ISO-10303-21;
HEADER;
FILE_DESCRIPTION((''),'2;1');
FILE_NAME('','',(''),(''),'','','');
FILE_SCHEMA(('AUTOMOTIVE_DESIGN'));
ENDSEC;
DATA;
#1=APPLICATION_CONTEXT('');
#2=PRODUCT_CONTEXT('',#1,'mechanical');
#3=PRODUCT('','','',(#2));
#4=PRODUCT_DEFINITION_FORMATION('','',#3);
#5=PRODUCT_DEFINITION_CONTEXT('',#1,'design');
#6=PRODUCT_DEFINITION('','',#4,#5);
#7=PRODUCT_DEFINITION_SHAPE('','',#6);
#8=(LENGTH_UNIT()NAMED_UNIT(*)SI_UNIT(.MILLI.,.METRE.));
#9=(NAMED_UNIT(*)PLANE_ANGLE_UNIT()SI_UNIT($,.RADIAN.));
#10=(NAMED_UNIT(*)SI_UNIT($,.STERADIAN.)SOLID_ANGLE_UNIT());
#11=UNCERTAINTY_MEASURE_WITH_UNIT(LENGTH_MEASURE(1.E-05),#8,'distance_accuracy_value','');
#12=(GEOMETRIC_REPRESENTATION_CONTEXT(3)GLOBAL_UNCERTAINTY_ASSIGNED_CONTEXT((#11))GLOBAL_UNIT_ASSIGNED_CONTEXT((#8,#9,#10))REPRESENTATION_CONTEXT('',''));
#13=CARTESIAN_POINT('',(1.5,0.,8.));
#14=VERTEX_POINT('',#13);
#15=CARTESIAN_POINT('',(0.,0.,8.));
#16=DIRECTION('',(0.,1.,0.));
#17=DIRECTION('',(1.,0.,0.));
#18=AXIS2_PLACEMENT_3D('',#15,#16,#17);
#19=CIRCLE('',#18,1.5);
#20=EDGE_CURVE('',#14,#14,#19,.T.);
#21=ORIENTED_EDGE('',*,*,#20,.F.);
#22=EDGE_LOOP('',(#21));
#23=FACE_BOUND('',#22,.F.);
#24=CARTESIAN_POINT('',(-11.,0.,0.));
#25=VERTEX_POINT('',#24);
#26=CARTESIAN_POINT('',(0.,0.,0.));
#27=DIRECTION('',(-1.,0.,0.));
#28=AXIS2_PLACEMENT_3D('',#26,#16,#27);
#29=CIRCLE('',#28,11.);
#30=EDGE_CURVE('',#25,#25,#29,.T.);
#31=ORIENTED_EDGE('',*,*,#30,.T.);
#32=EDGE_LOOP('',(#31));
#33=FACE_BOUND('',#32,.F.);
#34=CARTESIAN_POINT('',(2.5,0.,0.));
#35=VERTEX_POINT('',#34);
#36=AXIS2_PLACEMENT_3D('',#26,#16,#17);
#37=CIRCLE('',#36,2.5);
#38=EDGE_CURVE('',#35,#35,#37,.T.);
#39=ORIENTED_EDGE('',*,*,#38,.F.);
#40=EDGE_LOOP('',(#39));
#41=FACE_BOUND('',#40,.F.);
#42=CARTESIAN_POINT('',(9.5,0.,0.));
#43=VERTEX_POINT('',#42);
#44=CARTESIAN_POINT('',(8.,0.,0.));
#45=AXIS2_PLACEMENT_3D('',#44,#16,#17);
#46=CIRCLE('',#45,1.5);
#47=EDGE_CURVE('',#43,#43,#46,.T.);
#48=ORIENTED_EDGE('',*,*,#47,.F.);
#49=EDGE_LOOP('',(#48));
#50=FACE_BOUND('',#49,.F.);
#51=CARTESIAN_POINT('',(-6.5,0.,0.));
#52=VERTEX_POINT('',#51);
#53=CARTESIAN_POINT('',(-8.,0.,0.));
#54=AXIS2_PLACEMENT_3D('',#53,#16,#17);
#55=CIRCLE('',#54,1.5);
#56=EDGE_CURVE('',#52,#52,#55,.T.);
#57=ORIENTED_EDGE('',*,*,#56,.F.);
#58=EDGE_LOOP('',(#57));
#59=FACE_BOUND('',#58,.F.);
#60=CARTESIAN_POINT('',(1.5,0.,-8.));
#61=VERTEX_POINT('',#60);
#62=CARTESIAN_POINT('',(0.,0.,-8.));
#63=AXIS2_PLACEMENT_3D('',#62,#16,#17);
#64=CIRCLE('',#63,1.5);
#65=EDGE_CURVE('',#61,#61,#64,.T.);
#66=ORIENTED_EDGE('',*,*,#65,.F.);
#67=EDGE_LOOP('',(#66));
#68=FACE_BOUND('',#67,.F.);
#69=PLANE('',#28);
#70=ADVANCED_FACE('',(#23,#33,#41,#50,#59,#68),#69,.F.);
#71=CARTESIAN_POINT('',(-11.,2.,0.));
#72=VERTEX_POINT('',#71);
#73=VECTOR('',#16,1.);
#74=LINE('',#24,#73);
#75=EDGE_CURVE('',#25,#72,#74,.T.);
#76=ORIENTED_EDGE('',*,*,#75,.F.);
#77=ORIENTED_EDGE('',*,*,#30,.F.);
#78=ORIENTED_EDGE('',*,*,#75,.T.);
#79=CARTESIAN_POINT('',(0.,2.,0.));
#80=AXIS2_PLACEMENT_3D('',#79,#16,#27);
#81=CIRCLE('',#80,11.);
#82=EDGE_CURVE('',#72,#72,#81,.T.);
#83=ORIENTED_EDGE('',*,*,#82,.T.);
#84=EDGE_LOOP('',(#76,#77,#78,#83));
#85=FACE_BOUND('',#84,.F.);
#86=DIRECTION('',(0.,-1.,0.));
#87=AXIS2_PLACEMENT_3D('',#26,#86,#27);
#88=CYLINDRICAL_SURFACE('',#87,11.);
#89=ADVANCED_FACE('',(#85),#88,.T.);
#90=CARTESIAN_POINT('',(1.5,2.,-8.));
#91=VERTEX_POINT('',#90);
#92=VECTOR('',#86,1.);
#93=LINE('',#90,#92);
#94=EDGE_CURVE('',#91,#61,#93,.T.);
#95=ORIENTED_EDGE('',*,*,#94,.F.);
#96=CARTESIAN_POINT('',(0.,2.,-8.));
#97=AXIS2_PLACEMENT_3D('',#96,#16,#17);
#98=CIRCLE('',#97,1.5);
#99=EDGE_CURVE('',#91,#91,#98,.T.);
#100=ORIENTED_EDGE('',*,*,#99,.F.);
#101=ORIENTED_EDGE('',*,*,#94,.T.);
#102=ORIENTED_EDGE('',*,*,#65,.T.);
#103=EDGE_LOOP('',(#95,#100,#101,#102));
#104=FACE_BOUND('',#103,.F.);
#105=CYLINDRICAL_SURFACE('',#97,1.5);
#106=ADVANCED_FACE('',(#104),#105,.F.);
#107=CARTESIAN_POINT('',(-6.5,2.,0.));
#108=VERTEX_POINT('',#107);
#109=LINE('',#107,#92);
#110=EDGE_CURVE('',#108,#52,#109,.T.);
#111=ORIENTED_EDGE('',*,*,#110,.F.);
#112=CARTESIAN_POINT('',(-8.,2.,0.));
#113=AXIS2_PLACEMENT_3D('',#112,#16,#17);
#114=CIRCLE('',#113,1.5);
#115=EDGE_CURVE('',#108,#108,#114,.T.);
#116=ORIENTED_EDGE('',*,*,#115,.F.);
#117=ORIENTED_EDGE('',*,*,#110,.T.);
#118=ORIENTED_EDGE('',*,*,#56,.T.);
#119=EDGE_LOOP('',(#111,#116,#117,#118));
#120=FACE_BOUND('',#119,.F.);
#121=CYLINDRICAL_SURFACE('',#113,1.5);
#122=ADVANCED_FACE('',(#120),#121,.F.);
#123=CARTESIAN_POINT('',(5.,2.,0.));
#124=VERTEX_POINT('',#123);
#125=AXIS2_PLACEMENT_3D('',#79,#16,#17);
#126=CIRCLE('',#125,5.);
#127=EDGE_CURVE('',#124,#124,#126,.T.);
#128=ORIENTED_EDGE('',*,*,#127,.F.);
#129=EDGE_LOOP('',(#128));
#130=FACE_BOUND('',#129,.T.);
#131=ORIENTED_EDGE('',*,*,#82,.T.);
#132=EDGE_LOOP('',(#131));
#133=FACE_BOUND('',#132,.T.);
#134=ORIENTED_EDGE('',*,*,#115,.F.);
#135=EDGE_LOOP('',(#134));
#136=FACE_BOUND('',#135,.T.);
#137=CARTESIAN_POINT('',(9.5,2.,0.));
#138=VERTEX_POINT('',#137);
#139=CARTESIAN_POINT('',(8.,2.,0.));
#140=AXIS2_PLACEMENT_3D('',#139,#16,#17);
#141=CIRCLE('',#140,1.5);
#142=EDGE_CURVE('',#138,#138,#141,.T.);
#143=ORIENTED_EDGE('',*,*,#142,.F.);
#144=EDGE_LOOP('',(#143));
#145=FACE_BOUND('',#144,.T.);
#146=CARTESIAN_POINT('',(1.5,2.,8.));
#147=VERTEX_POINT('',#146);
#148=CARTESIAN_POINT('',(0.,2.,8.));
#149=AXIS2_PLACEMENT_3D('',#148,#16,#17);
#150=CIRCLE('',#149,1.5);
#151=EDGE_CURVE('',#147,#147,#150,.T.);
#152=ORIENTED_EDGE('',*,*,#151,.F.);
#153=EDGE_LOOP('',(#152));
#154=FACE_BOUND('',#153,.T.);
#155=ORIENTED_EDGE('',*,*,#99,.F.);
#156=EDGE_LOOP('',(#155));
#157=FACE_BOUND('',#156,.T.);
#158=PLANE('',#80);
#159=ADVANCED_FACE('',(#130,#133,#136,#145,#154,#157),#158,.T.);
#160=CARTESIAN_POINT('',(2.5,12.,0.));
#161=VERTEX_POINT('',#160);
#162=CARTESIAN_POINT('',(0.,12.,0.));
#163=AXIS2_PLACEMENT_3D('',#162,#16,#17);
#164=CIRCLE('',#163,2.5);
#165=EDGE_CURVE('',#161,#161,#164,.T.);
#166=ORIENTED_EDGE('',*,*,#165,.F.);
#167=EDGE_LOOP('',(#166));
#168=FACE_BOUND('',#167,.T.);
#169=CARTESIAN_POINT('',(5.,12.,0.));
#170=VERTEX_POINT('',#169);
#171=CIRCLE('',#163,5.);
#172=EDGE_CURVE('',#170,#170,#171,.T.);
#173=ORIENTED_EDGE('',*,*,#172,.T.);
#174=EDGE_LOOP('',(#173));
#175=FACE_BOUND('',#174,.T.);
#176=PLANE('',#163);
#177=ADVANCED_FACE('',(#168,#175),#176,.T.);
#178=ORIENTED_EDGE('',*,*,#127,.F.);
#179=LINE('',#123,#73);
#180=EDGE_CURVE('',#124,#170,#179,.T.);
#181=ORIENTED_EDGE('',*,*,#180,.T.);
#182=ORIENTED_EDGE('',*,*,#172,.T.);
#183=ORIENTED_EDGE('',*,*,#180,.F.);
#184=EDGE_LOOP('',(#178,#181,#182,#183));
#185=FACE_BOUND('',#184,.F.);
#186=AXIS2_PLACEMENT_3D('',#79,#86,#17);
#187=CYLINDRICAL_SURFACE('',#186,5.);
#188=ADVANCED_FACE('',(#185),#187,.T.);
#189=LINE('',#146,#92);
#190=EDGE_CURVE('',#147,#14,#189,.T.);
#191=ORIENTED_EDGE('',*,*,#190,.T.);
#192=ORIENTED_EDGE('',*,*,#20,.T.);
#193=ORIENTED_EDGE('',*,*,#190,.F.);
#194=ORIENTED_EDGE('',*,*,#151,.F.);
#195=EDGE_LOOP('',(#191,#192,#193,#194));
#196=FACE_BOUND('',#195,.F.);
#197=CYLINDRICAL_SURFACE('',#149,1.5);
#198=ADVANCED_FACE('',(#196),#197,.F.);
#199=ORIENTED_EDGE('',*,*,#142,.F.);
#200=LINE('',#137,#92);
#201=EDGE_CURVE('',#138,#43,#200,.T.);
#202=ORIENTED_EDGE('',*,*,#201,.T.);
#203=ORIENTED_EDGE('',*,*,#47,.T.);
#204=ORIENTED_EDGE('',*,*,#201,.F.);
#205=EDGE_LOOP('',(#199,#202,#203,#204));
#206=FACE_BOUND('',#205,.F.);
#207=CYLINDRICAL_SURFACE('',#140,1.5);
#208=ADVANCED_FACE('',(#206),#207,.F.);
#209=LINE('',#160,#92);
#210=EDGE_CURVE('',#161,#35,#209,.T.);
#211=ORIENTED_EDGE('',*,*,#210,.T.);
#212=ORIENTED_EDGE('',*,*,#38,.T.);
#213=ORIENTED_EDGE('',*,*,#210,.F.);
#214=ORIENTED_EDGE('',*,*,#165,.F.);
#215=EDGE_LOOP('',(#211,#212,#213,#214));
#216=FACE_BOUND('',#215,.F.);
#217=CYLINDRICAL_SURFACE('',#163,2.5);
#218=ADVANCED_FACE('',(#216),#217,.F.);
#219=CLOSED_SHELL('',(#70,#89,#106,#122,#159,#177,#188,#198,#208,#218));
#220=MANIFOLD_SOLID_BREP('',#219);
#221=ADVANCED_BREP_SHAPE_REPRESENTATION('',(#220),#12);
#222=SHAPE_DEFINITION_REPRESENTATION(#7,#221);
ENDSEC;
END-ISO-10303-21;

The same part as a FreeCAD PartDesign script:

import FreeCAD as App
import Part
import Sketcher
Q = App.Units.Quantity

doc = App.newDocument("Part")
body = doc.addObject("PartDesign::Body", "Body")

# Sketch on XZ plane
sketch1 = doc.addObject("Sketcher::SketchObject", "Sketch")
body.addObject(sketch1)
sketch1.AttachmentSupport = (doc.XZ_Plane, [""])
sketch1.MapMode = "FlatFace"
sketch1.addGeometry(Part.Circle(App.Vector(0, 0, 0), App.Vector(0, 0, 1), 11), False)
sketch1.addConstraint([
    Sketcher.Constraint("Coincident", 0, 3, -1, 1),
    Sketcher.Constraint("Diameter", 0, Q("22 mm")),
])
pad1 = doc.addObject("PartDesign::Pad", "Pad")
body.addObject(pad1)
pad1.Profile = sketch1
pad1.Length = 2
pad1.Reversed = True

# Sketch on XZ plane
sketch2 = doc.addObject("Sketcher::SketchObject", "Sketch001")
body.addObject(sketch2)
sketch2.AttachmentSupport = (doc.XZ_Plane, [""])
sketch2.MapMode = "FlatFace"
sketch2.AttachmentOffset = App.Placement(App.Vector(0, 0, -2), App.Rotation())
sketch2.addGeometry(Part.Circle(App.Vector(0, 0, 0), App.Vector(0, 0, 1), 5), False)
sketch2.addConstraint([
    Sketcher.Constraint("Coincident", 0, 3, -1, 1),
    Sketcher.Constraint("Diameter", 0, Q("10 mm")),
])
pad2 = doc.addObject("PartDesign::Pad", "Pad001")
body.addObject(pad2)
pad2.Profile = sketch2
pad2.Length = 10
pad2.Reversed = True

# Sketch on XZ plane
sketch3 = doc.addObject("Sketcher::SketchObject", "Sketch002")
body.addObject(sketch3)
sketch3.AttachmentSupport = (doc.XZ_Plane, [""])
sketch3.MapMode = "FlatFace"
sketch3.AttachmentOffset = App.Placement(App.Vector(0, 0, -12), App.Rotation())
sketch3.addGeometry(Part.Circle(App.Vector(0, 0, 0), App.Vector(0, 0, 1), 2.5), False)
sketch3.addConstraint([
    Sketcher.Constraint("Coincident", 0, 3, -1, 1),
    Sketcher.Constraint("Diameter", 0, Q("5 mm")),
])
pocket1 = doc.addObject("PartDesign::Pocket", "Pocket")
body.addObject(pocket1)
pocket1.Profile = sketch3
pocket1.Length = 12
pocket1.Reversed = True

# Sketch on XZ plane
sketch4 = doc.addObject("Sketcher::SketchObject", "Sketch003")
body.addObject(sketch4)
sketch4.AttachmentSupport = (doc.XZ_Plane, [""])
sketch4.MapMode = "FlatFace"
sketch4.AttachmentOffset = App.Placement(App.Vector(0, 0, -2), App.Rotation())
sketch4.addGeometry([
    Part.Circle(App.Vector(-8, 0, 0), App.Vector(0, 0, 1), 1.5),
    Part.Circle(App.Vector(0, 8, 0), App.Vector(0, 0, 1), 1.5),
    Part.Circle(App.Vector(8, 0, 0), App.Vector(0, 0, 1), 1.5),
    Part.Circle(App.Vector(0, -8, 0), App.Vector(0, 0, 1), 1.5),
], False)
sketch4.addConstraint([
    Sketcher.Constraint("Equal", 0, 1),
    Sketcher.Constraint("Equal", 1, 2),
    Sketcher.Constraint("Equal", 2, 3),
    Sketcher.Constraint("Symmetric", 0, 3, 2, 3, -1, 1),
    Sketcher.Constraint("Symmetric", 1, 3, 3, 3, -1, 1),
    Sketcher.Constraint("PointOnObject", 0, 3, -1),
    Sketcher.Constraint("PointOnObject", 1, 3, -2),
    Sketcher.Constraint("Diameter", 0, Q("3 mm")),
    Sketcher.Constraint("DistanceX", 0, 3, 2, 3, Q("16 mm")),
    Sketcher.Constraint("DistanceY", 3, 3, 1, 3, Q("16 mm")),
])
pocket2 = doc.addObject("PartDesign::Pocket", "Pocket001")
body.addObject(pocket2)
pocket2.Profile = sketch4
pocket2.Length = 2
pocket2.Reversed = True

doc.recompute()
